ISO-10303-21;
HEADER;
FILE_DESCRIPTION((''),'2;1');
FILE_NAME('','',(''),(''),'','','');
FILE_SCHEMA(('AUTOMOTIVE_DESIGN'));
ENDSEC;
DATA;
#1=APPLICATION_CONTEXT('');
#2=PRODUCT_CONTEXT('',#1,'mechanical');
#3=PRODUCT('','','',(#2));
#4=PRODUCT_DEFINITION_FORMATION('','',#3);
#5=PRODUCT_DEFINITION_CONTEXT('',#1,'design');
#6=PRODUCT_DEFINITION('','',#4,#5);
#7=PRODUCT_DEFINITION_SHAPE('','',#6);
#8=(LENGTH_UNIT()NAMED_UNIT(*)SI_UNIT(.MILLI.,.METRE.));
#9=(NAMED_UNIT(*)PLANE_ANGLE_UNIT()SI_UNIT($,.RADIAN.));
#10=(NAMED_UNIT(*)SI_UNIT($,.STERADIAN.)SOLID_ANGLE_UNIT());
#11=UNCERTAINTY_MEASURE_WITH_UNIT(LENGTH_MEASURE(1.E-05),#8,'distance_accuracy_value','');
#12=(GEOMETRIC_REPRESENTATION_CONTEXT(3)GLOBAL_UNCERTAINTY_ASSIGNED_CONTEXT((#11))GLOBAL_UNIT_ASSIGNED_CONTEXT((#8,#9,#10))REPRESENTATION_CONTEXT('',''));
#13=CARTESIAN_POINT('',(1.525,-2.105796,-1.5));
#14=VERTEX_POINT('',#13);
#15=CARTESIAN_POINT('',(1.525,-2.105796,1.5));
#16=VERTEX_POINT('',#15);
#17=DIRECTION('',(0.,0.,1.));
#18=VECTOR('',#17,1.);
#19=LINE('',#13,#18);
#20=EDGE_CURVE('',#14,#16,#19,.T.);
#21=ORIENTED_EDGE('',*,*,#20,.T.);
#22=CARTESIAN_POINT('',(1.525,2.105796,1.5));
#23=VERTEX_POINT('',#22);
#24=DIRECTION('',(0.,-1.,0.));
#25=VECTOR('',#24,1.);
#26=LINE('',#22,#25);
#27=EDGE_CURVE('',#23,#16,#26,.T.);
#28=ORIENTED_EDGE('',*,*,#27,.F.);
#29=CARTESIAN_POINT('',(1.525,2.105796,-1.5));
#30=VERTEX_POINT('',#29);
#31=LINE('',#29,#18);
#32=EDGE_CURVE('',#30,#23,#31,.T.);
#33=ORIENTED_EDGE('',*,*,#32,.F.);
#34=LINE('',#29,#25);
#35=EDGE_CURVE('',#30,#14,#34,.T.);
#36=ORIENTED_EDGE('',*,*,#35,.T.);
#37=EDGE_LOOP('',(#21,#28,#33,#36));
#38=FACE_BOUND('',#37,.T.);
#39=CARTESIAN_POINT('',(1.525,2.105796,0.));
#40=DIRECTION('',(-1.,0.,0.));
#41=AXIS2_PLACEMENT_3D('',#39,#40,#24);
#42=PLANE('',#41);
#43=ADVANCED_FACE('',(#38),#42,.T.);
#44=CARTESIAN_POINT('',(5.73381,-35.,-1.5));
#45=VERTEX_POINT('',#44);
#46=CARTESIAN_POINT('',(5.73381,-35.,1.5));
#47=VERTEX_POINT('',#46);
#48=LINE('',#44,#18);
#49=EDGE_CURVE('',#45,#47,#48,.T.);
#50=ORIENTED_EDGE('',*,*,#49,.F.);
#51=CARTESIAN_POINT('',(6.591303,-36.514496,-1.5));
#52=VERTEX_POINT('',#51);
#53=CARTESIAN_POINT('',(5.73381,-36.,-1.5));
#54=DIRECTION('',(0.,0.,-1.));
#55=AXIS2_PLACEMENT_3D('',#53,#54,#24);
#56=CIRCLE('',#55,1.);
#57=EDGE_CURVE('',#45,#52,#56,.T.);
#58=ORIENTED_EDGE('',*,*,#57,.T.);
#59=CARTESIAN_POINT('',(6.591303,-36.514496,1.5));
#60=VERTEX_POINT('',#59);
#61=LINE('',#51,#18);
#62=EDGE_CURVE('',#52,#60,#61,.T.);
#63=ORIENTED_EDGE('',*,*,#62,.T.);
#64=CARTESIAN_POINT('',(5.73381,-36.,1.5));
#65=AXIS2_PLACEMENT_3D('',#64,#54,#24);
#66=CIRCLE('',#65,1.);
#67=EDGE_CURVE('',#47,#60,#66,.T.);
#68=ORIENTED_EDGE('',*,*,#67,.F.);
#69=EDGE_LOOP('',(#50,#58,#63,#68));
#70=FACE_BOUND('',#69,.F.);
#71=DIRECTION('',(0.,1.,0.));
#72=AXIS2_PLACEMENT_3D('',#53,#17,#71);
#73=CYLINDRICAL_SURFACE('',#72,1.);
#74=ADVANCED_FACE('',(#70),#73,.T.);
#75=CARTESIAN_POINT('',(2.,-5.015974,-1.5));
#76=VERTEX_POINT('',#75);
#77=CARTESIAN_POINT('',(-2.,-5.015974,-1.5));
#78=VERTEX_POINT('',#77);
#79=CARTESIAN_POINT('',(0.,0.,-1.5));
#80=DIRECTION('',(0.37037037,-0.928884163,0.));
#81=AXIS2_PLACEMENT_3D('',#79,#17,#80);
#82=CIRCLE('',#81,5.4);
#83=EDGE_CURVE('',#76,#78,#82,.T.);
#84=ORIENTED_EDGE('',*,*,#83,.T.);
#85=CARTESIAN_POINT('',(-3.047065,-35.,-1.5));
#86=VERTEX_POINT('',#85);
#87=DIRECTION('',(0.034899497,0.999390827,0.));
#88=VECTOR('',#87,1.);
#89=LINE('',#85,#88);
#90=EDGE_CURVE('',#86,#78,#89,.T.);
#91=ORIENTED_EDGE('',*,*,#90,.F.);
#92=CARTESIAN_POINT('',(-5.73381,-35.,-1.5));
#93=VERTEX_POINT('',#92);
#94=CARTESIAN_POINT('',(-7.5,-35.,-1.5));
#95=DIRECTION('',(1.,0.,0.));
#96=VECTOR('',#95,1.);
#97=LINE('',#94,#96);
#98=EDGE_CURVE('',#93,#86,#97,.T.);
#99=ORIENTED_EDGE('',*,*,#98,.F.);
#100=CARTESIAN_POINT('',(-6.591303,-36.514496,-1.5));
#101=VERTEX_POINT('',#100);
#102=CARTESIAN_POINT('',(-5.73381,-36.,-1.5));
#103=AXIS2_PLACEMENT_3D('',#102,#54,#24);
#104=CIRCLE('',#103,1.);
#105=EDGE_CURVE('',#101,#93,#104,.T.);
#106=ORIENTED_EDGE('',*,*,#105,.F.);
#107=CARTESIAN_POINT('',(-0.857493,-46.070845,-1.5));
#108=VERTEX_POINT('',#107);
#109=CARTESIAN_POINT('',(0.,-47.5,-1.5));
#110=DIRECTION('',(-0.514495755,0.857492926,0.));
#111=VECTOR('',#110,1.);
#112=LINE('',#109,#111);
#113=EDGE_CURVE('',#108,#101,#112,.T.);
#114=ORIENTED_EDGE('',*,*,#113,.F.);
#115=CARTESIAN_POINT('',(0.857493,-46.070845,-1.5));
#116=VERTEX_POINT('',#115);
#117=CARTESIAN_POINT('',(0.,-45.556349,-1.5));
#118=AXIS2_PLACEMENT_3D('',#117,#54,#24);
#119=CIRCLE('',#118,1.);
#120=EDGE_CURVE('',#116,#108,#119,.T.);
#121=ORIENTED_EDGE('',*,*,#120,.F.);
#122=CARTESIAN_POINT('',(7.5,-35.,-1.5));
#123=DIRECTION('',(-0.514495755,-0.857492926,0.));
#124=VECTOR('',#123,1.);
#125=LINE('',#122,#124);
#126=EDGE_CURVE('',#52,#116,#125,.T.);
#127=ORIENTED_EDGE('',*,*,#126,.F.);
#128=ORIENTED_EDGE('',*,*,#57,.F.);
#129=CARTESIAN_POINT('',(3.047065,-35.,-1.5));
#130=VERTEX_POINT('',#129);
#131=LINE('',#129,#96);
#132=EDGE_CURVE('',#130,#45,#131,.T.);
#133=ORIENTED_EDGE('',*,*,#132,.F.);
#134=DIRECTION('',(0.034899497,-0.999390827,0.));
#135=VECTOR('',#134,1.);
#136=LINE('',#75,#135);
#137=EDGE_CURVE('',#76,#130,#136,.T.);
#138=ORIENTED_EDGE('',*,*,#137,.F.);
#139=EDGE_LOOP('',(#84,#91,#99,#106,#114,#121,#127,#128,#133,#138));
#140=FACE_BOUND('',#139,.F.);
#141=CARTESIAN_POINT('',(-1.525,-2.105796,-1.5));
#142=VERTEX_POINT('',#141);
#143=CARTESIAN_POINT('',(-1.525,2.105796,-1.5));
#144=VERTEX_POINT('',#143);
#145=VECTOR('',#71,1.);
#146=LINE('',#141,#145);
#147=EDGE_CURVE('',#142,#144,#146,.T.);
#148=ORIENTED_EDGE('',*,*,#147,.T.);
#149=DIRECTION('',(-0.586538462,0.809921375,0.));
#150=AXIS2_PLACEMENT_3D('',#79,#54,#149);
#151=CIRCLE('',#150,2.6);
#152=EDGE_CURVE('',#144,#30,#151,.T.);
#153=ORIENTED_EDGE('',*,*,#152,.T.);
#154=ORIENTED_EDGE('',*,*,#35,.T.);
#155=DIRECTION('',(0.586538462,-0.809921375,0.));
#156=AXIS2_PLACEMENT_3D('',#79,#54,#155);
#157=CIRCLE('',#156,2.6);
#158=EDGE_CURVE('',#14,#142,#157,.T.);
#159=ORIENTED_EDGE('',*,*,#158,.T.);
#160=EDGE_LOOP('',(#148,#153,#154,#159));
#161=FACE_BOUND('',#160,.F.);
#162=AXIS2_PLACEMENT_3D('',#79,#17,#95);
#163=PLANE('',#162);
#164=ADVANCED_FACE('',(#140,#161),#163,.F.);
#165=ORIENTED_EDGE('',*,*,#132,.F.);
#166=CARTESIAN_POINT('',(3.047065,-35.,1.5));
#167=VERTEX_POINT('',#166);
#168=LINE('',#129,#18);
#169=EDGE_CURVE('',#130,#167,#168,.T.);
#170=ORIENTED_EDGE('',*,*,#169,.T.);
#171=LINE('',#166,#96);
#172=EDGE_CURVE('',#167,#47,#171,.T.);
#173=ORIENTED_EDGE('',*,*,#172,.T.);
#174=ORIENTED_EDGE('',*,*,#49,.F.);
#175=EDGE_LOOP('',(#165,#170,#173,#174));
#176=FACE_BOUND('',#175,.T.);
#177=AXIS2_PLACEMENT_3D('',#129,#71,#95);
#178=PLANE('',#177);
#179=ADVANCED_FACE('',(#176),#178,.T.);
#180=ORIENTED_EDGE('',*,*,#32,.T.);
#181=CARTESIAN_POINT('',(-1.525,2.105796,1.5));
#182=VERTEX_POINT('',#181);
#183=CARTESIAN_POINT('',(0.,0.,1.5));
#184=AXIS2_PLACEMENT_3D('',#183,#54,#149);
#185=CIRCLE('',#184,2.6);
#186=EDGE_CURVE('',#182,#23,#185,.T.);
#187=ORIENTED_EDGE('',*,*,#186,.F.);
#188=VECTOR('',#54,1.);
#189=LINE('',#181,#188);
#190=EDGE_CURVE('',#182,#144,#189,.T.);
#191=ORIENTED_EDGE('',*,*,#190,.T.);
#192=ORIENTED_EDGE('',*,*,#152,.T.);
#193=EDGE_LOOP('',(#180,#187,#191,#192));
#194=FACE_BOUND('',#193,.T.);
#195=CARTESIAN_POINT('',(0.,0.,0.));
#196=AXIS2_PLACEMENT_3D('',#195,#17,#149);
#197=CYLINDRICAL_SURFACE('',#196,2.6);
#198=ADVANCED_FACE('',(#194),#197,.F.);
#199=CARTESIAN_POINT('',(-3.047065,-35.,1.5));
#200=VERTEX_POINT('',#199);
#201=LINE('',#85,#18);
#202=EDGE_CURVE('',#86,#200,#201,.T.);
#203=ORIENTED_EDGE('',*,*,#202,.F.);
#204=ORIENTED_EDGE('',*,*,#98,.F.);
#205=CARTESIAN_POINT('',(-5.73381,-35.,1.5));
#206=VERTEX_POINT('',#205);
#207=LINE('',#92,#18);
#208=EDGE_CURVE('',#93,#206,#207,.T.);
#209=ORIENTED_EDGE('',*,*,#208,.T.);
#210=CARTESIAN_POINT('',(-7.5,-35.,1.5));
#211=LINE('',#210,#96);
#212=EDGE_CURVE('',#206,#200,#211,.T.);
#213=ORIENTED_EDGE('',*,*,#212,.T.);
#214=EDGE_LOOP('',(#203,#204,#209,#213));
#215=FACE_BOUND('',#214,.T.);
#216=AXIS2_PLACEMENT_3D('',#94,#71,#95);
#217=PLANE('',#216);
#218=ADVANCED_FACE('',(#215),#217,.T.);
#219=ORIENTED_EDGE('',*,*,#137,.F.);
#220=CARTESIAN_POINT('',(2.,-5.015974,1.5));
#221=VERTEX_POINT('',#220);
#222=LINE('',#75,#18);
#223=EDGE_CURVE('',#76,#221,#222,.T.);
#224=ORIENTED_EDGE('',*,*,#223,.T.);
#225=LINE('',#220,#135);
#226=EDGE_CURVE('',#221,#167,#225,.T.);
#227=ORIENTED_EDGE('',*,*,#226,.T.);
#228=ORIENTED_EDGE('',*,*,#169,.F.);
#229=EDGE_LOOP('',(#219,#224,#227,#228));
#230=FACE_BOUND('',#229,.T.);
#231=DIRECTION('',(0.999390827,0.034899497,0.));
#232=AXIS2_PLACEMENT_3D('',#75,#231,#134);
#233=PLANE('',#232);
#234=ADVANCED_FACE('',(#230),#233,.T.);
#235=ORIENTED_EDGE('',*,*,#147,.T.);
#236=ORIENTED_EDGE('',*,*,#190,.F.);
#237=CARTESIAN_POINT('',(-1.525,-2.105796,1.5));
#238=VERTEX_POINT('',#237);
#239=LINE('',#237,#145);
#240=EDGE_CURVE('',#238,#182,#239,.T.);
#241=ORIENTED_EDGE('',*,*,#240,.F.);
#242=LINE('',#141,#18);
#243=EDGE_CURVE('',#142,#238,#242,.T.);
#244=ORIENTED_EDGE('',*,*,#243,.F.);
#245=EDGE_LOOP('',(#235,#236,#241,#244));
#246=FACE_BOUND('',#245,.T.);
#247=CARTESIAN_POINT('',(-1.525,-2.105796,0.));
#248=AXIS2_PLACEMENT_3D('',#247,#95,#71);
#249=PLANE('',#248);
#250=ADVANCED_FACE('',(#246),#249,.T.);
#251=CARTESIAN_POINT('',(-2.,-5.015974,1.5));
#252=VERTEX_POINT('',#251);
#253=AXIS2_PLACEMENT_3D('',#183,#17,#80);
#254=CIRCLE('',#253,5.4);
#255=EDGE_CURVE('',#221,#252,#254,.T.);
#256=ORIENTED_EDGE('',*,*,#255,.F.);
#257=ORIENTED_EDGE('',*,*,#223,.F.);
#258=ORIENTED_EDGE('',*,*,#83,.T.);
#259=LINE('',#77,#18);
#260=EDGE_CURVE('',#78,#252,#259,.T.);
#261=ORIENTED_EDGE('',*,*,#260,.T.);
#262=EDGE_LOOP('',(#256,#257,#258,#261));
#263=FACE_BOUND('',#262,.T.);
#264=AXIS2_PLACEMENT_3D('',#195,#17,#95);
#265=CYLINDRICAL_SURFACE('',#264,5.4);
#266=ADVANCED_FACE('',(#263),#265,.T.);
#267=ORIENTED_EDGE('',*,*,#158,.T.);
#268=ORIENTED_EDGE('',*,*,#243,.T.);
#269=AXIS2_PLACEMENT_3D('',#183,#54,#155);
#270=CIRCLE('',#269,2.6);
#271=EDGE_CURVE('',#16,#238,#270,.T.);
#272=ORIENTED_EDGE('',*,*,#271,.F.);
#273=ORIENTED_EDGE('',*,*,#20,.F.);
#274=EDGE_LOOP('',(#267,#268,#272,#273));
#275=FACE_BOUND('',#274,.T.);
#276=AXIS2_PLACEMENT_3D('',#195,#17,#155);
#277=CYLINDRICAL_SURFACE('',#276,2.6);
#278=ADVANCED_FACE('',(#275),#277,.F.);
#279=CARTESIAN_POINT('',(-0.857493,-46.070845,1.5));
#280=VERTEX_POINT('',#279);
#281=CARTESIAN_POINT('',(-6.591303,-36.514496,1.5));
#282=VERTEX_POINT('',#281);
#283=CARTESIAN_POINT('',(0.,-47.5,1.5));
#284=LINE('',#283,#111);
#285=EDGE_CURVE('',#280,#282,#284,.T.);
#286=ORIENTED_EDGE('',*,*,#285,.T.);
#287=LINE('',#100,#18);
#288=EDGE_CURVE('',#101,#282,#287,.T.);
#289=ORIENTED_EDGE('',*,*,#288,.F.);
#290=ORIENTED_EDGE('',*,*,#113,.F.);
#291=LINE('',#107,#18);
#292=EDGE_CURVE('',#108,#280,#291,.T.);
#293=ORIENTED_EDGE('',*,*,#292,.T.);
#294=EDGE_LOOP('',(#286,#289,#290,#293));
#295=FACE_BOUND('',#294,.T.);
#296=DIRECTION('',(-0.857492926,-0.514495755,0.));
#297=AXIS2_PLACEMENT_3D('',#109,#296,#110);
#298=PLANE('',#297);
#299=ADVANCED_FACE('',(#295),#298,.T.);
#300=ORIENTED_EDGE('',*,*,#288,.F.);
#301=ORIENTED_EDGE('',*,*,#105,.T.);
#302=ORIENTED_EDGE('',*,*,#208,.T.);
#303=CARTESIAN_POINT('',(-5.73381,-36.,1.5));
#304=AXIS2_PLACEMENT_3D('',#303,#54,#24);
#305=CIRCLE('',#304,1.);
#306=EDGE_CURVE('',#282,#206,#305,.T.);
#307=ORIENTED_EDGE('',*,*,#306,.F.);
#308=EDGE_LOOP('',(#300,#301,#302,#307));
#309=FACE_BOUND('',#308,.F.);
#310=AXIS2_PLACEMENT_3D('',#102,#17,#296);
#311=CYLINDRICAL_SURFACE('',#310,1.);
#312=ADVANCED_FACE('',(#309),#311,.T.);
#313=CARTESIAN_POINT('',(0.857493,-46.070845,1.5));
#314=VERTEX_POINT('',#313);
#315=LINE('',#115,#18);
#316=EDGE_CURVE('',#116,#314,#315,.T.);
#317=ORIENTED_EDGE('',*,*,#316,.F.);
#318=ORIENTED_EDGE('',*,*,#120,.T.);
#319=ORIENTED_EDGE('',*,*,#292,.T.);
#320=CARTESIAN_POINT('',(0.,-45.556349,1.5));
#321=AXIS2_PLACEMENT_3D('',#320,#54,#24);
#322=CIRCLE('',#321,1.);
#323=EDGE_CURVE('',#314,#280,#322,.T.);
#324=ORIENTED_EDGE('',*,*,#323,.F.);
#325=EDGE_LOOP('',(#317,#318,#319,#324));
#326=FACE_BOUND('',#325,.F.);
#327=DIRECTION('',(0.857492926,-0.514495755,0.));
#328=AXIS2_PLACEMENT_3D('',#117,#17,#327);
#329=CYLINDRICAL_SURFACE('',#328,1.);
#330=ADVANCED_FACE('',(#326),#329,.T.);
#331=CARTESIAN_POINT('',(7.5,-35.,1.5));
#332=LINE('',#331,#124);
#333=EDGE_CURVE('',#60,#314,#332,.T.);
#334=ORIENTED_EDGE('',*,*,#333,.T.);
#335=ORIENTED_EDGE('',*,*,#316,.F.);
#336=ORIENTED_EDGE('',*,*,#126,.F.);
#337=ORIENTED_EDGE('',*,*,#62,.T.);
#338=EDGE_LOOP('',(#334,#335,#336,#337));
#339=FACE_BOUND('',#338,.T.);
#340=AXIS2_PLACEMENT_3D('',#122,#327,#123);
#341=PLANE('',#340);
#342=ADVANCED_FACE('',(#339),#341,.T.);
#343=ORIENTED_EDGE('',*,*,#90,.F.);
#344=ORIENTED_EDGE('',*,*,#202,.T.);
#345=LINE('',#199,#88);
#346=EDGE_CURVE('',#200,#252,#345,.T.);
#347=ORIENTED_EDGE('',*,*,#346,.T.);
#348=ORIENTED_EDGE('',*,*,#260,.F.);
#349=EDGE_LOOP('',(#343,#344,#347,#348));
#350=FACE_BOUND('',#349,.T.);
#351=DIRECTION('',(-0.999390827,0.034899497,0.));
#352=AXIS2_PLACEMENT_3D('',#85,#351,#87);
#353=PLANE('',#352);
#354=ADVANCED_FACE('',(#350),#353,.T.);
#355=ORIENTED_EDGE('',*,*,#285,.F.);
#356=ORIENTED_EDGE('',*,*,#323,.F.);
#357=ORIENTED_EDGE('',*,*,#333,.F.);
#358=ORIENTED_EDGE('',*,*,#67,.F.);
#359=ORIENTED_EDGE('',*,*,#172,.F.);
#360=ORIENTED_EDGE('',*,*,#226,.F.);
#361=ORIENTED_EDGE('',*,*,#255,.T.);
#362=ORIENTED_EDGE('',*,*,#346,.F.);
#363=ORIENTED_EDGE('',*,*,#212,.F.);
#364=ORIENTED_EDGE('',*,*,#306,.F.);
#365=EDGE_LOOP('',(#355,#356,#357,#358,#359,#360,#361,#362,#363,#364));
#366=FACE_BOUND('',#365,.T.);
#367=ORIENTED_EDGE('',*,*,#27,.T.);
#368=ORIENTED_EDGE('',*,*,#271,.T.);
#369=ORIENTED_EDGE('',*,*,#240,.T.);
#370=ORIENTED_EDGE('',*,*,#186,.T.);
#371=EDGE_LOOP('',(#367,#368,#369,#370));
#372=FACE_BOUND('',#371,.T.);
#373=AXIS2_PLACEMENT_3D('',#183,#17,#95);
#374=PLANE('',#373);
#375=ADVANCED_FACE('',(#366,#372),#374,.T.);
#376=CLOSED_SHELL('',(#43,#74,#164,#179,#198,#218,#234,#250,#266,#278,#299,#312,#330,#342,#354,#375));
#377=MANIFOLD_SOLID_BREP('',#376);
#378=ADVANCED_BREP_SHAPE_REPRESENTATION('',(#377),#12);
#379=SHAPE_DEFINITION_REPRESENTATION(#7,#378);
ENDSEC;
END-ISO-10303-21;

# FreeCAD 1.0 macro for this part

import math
import FreeCAD as App
import Part
import Sketcher
from FreeCAD import Vector
Q = App.Units.Quantity


def edges_at(feature, points):
    """Names of the edges that pass closest to the given points."""
    edges = feature.Shape.Edges
    near = lambda p: min(range(len(edges)), key=lambda i: edges[i].distToShape(Part.Vertex(*p))[0])
    return sorted({f"Edge{near(p) + 1}" for p in points})


def add_polygon(sketch, points):
    """Adds a closed chain of lines whose ends are joined by coincident constraints."""
    first, n = sketch.GeometryCount, len(points)
    for a, b in zip(points, points[1:] + points[:1]):
        sketch.addGeometry(Part.LineSegment(App.Vector(*a, 0), App.Vector(*b, 0)), False)
    for i in range(n):
        sketch.addConstraint(Sketcher.Constraint("Coincident", first + i, 2, first + (i + 1) % n, 1))

doc = App.newDocument("Part")
params = doc.addObject("Spreadsheet::Sheet", "Params")
for row, (alias, value) in enumerate([
    ("sketch1_diameter", "10.8 mm"),
    ("sketch1_radius", "2.6 mm"),
    ("pad1_length", "3 mm"),
    ("sketch2_width", "4 mm"),
    ("pad2_length", "3 mm"),
    ("fillet_radius", "1 mm"),
], start=1):
    params.set(f"A{row}", alias)
    params.set(f"B{row}", "=" + value)
    params.setAlias(f"B{row}", alias)

body = doc.addObject("PartDesign::Body", "Body")

sketch1 = body.newObject("Sketcher::SketchObject", "Sketch")
sketch1.AttachmentSupport = (doc.getObject("XY_Plane"), [""])
sketch1.MapMode = "FlatFace"
sketch1.addGeometry([
    Part.Circle(Vector(0, 0, 0), Vector(0, 0, 1), 5.4),
    Part.ArcOfCircle(Part.Circle(Vector(0, 0, 0), Vector(0, 0, 1), 2.6), math.radians(54.08825), math.radians(125.91175)),
    Part.LineSegment(Vector(1.525, 2.105796, 0), Vector(1.525, -2.105796, 0)),
    Part.ArcOfCircle(Part.Circle(Vector(0, 0, 0), Vector(0, 0, 1), 2.6), math.radians(-125.91175), math.radians(-54.08825)),
    Part.LineSegment(Vector(-1.525, -2.105796, 0), Vector(-1.525, 2.105796, 0)),
], False)
sketch1.addConstraint([
    Sketcher.Constraint("Coincident", 1, 1, 2, 1),
    Sketcher.Constraint("Coincident", 2, 2, 3, 2),
    Sketcher.Constraint("Coincident", 3, 1, 4, 1),
    Sketcher.Constraint("Coincident", 4, 2, 1, 2),
    Sketcher.Constraint("Vertical", 2),
    Sketcher.Constraint("Vertical", 4),
    Sketcher.Constraint("Coincident", 0, 3, -1, 1),
    Sketcher.Constraint("Coincident", 1, 3, -1, 1),
    Sketcher.Constraint("Coincident", 3, 3, -1, 1),
    Sketcher.Constraint("Equal", 1, 3),
    Sketcher.Constraint("Horizontal", 2, 2, 3, 1),
    Sketcher.Constraint("Diameter", 0, 10.8),
    Sketcher.Constraint("Radius", 1, 2.6),
    Sketcher.Constraint("DistanceX", 3, 1, 2, 2, 3.05),
])
sketch1.setExpression("Constraints[11]", "Params.sketch1_diameter")
sketch1.setExpression("Constraints[12]", "Params.sketch1_radius")
pad1 = body.newObject("PartDesign::Pad", "Pad")
pad1.Profile = sketch1
pad1.setExpression("Length", "Params.pad1_length")
pad1.Midplane = True

sketch2 = body.newObject("Sketcher::SketchObject", "Sketch001")
sketch2.AttachmentSupport = (doc.getObject("XY_Plane"), [""])
sketch2.MapMode = "FlatFace"
sketch2.AttachmentOffset = App.Placement(Vector(0, 0, -1.5), App.Rotation())
add_polygon(sketch2, [(-2, -5.015974), (2, -5.015974), (3.047065, -35), (7.5, -35), (0, -47.5), (-7.5, -35), (-3.047065, -35)])
sketch2.addConstraint([
    Sketcher.Constraint("Horizontal", 0),
    Sketcher.Constraint("Horizontal", 2),
    Sketcher.Constraint("Horizontal", 5),
    Sketcher.Constraint("Symmetric", 2, 2, 4, 2, -2),
    Sketcher.Constraint("PointOnObject", 3, 2, -2),
    Sketcher.Constraint("Equal", 2, 5),
    Sketcher.Constraint("Equal", 1, 6),
    Sketcher.Constraint("DistanceX", 0, 1, 0, 2, 4.0),
    Sketcher.Constraint("Angle", 1, Q("-88 deg")),
    Sketcher.Constraint("DistanceY", 1, 2, -1, 1, 35.0),
    Sketcher.Constraint("DistanceX", 4, 2, 2, 2, 15.0),
    Sketcher.Constraint("DistanceY", 3, 2, -1, 1, 47.5),
    Sketcher.Constraint("DistanceX", 2, 1, 2, 2, 4.452935),
])
sketch2.setExpression("Constraints[14]", "Params.sketch2_width")
pad2 = body.newObject("PartDesign::Pad", "Pad001")
pad2.Profile = sketch2
pad2.setExpression("Length", "Params.pad2_length")
doc.recompute()

fillet = body.newObject("PartDesign::Fillet", "Fillet")
fillet.Base = (pad2, edges_at(pad2, [(0, -47.5, 0), (-7.5, -35, 0), (7.5, -35, 0)]))
fillet.setExpression("Radius", "Params.fillet_radius")

doc.recompute()
